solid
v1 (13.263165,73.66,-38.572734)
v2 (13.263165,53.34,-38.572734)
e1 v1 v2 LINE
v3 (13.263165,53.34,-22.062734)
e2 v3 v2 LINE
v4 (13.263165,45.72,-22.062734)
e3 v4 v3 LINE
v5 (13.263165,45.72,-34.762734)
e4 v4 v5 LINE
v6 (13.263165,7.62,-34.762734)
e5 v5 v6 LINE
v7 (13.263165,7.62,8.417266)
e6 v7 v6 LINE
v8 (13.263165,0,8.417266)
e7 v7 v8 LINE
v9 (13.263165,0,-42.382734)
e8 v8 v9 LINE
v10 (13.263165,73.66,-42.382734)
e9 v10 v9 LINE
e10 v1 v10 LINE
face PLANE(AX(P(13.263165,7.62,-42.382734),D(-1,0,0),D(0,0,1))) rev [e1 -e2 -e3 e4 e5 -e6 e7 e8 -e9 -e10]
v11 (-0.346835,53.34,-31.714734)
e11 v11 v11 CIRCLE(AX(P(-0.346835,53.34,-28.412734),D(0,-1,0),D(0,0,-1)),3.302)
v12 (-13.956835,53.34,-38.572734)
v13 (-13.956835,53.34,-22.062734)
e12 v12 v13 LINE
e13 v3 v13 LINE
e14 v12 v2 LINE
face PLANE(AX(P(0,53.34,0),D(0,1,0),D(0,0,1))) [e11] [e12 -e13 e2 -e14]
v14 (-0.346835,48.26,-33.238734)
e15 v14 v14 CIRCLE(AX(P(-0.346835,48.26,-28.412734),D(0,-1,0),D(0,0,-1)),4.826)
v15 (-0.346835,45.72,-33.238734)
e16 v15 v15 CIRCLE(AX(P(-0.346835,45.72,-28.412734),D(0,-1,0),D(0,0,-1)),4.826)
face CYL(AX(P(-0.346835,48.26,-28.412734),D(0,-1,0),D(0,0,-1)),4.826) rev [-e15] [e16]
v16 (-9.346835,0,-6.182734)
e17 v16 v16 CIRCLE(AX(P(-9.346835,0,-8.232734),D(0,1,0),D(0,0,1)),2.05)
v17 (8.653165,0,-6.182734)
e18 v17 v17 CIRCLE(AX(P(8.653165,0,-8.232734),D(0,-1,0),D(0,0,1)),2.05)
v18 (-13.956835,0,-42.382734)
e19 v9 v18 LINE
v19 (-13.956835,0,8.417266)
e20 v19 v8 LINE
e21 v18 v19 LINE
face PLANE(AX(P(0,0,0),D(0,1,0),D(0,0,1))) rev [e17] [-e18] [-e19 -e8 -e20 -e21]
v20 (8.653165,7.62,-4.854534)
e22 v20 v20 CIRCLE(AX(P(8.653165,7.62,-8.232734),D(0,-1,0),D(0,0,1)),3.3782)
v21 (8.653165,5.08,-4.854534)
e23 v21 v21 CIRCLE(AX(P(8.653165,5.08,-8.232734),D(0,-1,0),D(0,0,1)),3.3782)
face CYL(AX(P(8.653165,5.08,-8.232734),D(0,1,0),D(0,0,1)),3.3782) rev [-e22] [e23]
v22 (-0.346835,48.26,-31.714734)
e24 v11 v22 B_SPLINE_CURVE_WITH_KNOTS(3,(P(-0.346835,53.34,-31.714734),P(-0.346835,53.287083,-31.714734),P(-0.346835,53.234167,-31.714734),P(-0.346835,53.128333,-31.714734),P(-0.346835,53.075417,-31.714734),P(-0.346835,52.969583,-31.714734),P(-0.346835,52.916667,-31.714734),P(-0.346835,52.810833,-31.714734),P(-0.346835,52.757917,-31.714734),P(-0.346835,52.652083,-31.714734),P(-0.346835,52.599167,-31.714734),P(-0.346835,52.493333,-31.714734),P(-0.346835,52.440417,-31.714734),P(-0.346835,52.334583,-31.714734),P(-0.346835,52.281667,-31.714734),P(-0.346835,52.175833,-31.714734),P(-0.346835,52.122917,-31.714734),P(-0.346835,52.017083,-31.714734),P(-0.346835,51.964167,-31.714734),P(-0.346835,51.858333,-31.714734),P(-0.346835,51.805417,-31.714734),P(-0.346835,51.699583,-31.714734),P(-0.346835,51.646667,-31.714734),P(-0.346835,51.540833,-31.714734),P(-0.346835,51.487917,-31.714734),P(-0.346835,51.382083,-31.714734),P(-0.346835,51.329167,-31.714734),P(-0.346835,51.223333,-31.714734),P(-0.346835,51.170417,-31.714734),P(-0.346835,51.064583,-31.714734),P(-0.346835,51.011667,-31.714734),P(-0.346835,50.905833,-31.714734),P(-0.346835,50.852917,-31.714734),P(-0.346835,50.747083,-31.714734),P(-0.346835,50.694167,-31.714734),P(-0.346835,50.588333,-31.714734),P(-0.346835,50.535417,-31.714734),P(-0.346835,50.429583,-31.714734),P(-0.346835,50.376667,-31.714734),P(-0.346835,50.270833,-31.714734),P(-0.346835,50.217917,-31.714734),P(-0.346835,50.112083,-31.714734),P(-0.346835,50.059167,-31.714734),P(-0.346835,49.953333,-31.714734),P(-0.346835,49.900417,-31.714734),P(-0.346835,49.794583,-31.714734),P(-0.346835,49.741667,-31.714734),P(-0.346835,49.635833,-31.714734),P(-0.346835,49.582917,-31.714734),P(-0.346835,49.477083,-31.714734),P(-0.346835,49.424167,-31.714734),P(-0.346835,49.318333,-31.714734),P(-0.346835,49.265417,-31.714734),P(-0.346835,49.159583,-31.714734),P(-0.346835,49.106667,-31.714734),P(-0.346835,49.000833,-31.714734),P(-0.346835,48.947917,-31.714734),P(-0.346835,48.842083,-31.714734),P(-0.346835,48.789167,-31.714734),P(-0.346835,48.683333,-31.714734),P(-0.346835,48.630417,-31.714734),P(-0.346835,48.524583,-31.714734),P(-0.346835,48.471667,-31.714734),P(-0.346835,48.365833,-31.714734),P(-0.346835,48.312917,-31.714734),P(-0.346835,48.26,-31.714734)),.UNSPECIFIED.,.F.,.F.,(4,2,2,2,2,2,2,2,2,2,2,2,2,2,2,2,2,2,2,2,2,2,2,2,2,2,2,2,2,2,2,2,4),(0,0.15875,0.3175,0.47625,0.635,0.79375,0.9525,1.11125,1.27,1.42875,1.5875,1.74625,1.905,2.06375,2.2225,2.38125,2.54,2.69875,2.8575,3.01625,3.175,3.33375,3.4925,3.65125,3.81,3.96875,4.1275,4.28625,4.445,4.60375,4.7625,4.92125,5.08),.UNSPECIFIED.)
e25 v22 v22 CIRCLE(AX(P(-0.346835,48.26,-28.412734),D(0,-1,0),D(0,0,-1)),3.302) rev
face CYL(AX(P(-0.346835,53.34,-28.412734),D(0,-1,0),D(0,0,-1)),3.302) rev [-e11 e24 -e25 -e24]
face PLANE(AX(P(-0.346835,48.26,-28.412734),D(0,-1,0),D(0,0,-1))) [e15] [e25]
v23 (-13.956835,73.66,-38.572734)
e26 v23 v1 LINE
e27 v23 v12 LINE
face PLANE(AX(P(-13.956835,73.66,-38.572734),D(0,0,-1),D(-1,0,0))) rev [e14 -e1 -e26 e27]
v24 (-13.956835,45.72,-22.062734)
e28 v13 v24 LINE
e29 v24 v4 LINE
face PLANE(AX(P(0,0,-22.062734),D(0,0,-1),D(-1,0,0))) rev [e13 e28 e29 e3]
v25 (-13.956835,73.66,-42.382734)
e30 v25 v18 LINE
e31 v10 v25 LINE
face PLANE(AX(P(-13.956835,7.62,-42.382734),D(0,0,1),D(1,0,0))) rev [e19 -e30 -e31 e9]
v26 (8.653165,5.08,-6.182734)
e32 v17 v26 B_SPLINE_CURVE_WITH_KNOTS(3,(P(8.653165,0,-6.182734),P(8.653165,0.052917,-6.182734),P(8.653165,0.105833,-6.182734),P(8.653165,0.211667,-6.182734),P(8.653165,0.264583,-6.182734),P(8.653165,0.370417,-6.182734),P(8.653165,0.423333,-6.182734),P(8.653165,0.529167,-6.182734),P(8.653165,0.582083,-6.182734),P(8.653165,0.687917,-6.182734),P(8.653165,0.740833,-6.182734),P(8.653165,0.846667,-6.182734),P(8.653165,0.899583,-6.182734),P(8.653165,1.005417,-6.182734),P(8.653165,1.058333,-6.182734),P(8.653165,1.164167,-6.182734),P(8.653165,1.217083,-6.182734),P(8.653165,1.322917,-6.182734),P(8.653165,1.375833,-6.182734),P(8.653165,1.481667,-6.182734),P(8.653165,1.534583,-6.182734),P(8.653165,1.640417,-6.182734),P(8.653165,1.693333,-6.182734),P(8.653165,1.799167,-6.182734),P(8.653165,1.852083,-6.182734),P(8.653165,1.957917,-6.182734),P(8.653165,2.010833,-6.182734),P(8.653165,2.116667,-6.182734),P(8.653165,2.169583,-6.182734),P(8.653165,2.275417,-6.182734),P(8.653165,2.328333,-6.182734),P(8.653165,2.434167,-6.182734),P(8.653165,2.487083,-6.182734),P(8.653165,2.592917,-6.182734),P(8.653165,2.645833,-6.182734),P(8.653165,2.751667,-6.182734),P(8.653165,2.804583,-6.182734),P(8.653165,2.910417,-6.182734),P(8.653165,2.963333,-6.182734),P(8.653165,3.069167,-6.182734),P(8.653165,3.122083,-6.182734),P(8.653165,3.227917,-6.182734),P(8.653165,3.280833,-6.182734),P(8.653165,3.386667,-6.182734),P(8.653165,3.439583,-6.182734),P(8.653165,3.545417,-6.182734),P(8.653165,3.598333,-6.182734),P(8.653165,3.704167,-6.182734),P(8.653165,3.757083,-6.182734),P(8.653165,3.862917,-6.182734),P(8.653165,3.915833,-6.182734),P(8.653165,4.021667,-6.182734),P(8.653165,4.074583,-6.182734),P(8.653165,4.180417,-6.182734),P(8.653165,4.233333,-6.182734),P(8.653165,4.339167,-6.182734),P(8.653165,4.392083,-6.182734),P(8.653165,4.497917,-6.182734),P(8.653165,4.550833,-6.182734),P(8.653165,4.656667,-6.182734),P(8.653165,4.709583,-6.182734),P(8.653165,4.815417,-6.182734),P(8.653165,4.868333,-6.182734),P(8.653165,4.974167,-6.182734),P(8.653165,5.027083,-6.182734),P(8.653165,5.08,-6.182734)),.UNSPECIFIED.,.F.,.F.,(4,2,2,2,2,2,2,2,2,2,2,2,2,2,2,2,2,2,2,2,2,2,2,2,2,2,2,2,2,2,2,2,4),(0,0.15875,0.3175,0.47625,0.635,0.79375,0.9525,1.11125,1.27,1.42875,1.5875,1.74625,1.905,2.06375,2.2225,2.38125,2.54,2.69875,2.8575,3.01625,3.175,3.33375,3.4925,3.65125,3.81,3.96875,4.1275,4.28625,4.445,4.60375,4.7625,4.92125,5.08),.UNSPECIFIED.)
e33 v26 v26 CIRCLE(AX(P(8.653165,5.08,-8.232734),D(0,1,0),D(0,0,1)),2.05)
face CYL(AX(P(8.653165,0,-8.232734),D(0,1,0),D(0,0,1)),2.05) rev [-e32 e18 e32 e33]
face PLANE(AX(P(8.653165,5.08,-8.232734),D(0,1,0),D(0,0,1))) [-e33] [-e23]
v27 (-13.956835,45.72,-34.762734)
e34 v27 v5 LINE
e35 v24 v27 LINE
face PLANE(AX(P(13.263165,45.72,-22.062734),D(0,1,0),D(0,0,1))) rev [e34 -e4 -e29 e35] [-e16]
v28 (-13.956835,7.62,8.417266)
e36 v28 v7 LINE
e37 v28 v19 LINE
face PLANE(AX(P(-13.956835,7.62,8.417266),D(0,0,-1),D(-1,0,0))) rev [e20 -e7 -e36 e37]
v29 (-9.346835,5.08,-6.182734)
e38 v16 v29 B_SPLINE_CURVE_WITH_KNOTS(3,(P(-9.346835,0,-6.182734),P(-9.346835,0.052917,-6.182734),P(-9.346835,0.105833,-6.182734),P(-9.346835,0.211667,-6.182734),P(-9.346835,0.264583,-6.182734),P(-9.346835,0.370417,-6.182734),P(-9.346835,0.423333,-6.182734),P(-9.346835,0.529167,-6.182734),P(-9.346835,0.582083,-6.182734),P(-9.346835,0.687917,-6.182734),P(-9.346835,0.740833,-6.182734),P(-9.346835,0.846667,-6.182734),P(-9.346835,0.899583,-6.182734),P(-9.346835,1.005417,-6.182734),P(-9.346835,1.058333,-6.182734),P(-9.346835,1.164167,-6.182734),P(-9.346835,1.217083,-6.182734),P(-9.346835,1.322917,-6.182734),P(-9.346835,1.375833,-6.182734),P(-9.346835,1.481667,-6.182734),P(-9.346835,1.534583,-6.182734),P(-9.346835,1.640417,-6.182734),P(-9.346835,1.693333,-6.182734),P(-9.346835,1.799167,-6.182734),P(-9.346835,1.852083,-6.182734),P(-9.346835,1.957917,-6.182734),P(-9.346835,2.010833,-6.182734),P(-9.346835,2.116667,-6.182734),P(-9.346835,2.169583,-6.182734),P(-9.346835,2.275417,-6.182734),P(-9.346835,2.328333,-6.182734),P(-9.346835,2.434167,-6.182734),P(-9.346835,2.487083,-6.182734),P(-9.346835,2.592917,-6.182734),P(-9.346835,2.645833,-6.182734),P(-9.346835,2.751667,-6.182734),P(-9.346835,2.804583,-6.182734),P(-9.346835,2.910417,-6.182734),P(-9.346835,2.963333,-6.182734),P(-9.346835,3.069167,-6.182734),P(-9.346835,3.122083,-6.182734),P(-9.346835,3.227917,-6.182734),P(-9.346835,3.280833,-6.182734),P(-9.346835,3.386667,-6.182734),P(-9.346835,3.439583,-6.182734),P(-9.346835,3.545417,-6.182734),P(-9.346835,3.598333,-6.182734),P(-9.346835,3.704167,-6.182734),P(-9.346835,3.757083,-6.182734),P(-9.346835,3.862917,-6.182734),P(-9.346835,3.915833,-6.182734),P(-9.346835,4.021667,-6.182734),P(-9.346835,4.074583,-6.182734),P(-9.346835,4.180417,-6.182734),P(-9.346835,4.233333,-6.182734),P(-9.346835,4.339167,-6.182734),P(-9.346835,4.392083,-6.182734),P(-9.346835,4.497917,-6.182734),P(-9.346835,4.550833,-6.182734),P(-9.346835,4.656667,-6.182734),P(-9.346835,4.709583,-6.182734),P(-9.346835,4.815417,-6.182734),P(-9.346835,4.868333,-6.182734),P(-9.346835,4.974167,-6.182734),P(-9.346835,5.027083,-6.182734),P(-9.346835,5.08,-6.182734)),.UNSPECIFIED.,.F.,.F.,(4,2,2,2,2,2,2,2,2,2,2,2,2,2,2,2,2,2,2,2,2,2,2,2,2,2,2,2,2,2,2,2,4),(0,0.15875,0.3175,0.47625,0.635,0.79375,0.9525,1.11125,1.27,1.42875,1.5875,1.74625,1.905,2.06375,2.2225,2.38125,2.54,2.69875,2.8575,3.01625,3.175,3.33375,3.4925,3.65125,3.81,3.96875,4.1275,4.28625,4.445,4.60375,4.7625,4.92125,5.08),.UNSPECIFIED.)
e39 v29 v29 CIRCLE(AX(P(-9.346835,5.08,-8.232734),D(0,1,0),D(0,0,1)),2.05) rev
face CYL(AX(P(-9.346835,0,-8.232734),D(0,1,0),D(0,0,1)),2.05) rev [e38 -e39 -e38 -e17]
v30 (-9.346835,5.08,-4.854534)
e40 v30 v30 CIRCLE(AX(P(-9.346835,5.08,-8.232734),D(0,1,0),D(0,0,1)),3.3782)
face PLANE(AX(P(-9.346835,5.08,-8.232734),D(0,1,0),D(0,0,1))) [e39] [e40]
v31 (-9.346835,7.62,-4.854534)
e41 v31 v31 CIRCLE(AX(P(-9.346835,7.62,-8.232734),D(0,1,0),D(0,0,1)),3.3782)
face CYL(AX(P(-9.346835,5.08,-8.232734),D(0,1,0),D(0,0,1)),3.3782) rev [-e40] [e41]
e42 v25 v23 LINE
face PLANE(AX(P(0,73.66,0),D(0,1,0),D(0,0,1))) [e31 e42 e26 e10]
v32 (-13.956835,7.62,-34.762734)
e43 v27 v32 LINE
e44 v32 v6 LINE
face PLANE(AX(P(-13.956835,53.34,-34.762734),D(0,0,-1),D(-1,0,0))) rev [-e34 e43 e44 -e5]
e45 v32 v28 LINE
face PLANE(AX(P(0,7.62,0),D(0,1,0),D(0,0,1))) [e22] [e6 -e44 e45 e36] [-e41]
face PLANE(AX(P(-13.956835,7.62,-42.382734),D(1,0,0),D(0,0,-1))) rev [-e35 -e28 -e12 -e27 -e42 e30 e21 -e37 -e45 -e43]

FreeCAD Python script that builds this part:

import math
import FreeCAD as App
import Part
import Sketcher
from FreeCAD import Vector
Q = App.Units.Quantity


def add_polygon(sketch, points):
    """Adds a closed chain of lines whose ends are joined by coincident constraints."""
    first, n = sketch.GeometryCount, len(points)
    for a, b in zip(points, points[1:] + points[:1]):
        sketch.addGeometry(Part.LineSegment(App.Vector(*a, 0), App.Vector(*b, 0)), False)
    for i in range(n):
        sketch.addConstraint(Sketcher.Constraint("Coincident", first + i, 2, first + (i + 1) % n, 1))

doc = App.newDocument("Part")
params = doc.addObject("Spreadsheet::Sheet", "Params")
for row, (alias, value) in enumerate([
    ("sketch1_height", "2 in"),
    ("pad1_length", "0.3 in"),
    ("pocket1_length", "0.3 in"),
    ("sketch3_diameter", "0.266 in"),
    ("pocket2_length", "0.1 in"),
    ("sketch4_height", "0.3 in"),
    ("pad2_length", "1.8 in"),
    ("sketch5_height", "0.3 in"),
    ("pad3_length", "0.5 in"),
    ("sketch6_radius", "0.13 in"),
    ("pocket3_length", "0.3 in"),
    ("sketch7_diameter", "0.38 in"),
    ("pocket4_length", "0.1 in"),
    ("sketch8_height", "0.15 in"),
    ("pad4_length", "0.8 in"),
], start=1):
    params.set(f"A{row}", alias)
    params.set(f"B{row}", "=" + value)
    params.setAlias(f"B{row}", alias)

body = doc.addObject("PartDesign::Body", "Body")

sketch1 = doc.addObject("Sketcher::SketchObject", "Sketch")
body.addObject(sketch1)
sketch1.AttachmentSupport = (doc.XZ_Plane, [""])
sketch1.MapMode = "FlatFace"
add_polygon(sketch1, [(-13.956835, -42.382734), (-13.956835, 8.417266), (13.263165, 8.417266), (13.263165, -42.382734)])
sketch1.addConstraint(Sketcher.Constraint("Vertical", 0))
sketch1.addConstraint(Sketcher.Constraint("Horizontal", 1))
sketch1.addConstraint(Sketcher.Constraint("Vertical", 2))
sketch1.addConstraint(Sketcher.Constraint("Horizontal", 3))
sketch1.addConstraint(Sketcher.Constraint("DistanceY", 0, 1, 0, 2, Q("2 in")))
sketch1.addConstraint(Sketcher.Constraint("DistanceX", 1, 1, 1, 2, Q("27.22 mm")))
sketch1.addConstraint(Sketcher.Constraint("DistanceX", 0, 2, -1, 1, Q("13.956835 mm")))
sketch1.addConstraint(Sketcher.Constraint("DistanceY", -1, 1, 0, 2, Q("8.417266 mm")))
sketch1.setExpression("Constraints[8]", "Params.sketch1_height")
pad1 = doc.addObject("PartDesign::Pad", "Pad")
body.addObject(pad1)
pad1.Profile = sketch1
pad1.setExpression("Length", "Params.pad1_length")
pad1.Reversed = True

sketch2 = doc.addObject("Sketcher::SketchObject", "Sketch001")
body.addObject(sketch2)
sketch2.AttachmentSupport = (doc.XZ_Plane, [""])
sketch2.MapMode = "FlatFace"
sketch2.AttachmentOffset = App.Placement(Vector(0, 0, -0.3 * 25.4), App.Rotation())
sketch2.addGeometry(Part.Circle(Vector(-9.346835, -8.232734, 0), Vector(0, 0, 1), 2.05), False)
sketch2.addConstraint(Sketcher.Constraint("Diameter", 0, Q("4.1 mm")))
sketch2.addConstraint(Sketcher.Constraint("DistanceX", 0, 3, -1, 1, Q("9.346835 mm")))
sketch2.addConstraint(Sketcher.Constraint("DistanceY", 0, 3, -1, 1, Q("8.232734 mm")))
pocket1 = doc.addObject("PartDesign::Pocket", "Pocket")
body.addObject(pocket1)
pocket1.Profile = sketch2
pocket1.setExpression("Length", "Params.pocket1_length")
pocket1.Reversed = True

sketch3 = doc.addObject("Sketcher::SketchObject", "Sketch002")
body.addObject(sketch3)
sketch3.AttachmentSupport = (doc.XZ_Plane, [""])
sketch3.MapMode = "FlatFace"
sketch3.AttachmentOffset = App.Placement(Vector(0, 0, -0.3 * 25.4), App.Rotation())
sketch3.addGeometry(Part.Circle(Vector(-9.346835, -8.232734, 0), Vector(0, 0, 1), 3.3782), False)
sketch3.addConstraint(Sketcher.Constraint("Diameter", 0, Q("0.266 in")))
sketch3.addConstraint(Sketcher.Constraint("DistanceX", 0, 3, -1, 1, Q("9.346835 mm")))
sketch3.addConstraint(Sketcher.Constraint("DistanceY", 0, 3, -1, 1, Q("8.232734 mm")))
sketch3.setExpression("Constraints[0]", "Params.sketch3_diameter")
pocket2 = doc.addObject("PartDesign::Pocket", "Pocket001")
body.addObject(pocket2)
pocket2.Profile = sketch3
pocket2.setExpression("Length", "Params.pocket2_length")
pocket2.Reversed = True
doc.recompute()

datumplane = doc.addObject("PartDesign::Plane", "DatumPlane")
body.addObject(datumplane)
datumplane.AttachmentSupport = (doc.YZ_Plane, [""])
datumplane.MapMode = "FlatFace"
datumplane.AttachmentOffset = App.Placement(Vector(0, 0, -0.346835), App.Rotation())
mirrored = doc.addObject("PartDesign::Mirrored", "Mirrored")
body.addObject(mirrored)
mirrored.Originals = [pocket1, pocket2]
mirrored.MirrorPlane = (datumplane, [""])
body.Tip = mirrored

sketch4 = doc.addObject("Sketcher::SketchObject", "Sketch003")
body.addObject(sketch4)
sketch4.AttachmentSupport = (doc.XZ_Plane, [""])
sketch4.MapMode = "FlatFace"
sketch4.AttachmentOffset = App.Placement(Vector(0, 0, -0.3 * 25.4), App.Rotation())
add_polygon(sketch4, [(-13.956835, -42.382734), (-13.956835, -34.762734), (13.263165, -34.762734), (13.263165, -42.382734)])
sketch4.addConstraint(Sketcher.Constraint("Vertical", 0))
sketch4.addConstraint(Sketcher.Constraint("Horizontal", 1))
sketch4.addConstraint(Sketcher.Constraint("Vertical", 2))
sketch4.addConstraint(Sketcher.Constraint("Horizontal", 3))
sketch4.addConstraint(Sketcher.Constraint("DistanceY", 0, 1, 0, 2, Q("0.3 in")))
sketch4.addConstraint(Sketcher.Constraint("DistanceX", 1, 1, 1, 2, Q("27.22 mm")))
sketch4.addConstraint(Sketcher.Constraint("DistanceX", 0, 2, -1, 1, Q("13.956835 mm")))
sketch4.addConstraint(Sketcher.Constraint("DistanceY", 0, 2, -1, 1, Q("34.762734 mm")))
sketch4.setExpression("Constraints[8]", "Params.sketch4_height")
pad2 = doc.addObject("PartDesign::Pad", "Pad001")
body.addObject(pad2)
pad2.Profile = sketch4
pad2.setExpression("Length", "Params.pad2_length")
pad2.Reversed = True

sketch5 = doc.addObject("Sketcher::SketchObject", "Sketch004")
body.addObject(sketch5)
sketch5.AttachmentSupport = (doc.XY_Plane, [""])
sketch5.MapMode = "FlatFace"
sketch5.AttachmentOffset = App.Placement(Vector(0, 0, -34.762734), App.Rotation())
add_polygon(sketch5, [(-13.956835, 53.34), (-13.956835, 45.72), (13.263165, 45.72), (13.263165, 53.34)])
sketch5.addConstraint(Sketcher.Constraint("Vertical", 0))
sketch5.addConstraint(Sketcher.Constraint("Horizontal", 1))
sketch5.addConstraint(Sketcher.Constraint("Vertical", 2))
sketch5.addConstraint(Sketcher.Constraint("Horizontal", 3))
sketch5.addConstraint(Sketcher.Constraint("DistanceY", 0, 2, 0, 1, Q("0.3 in")))
sketch5.addConstraint(Sketcher.Constraint("DistanceY", -1, 1, 0, 2, Q("1.8 in")))
sketch5.addConstraint(Sketcher.Constraint("DistanceX", 1, 1, 1, 2, Q("27.22 mm")))
sketch5.addConstraint(Sketcher.Constraint("DistanceX", 0, 2, -1, 1, Q("13.956835 mm")))
sketch5.setExpression("Constraints[8]", "Params.sketch5_height")
pad3 = doc.addObject("PartDesign::Pad", "Pad002")
body.addObject(pad3)
pad3.Profile = sketch5
pad3.setExpression("Length", "Params.pad3_length")

sketch6 = doc.addObject("Sketcher::SketchObject", "Sketch005")
body.addObject(sketch6)
sketch6.AttachmentSupport = (doc.XZ_Plane, [""])
sketch6.MapMode = "FlatFace"
sketch6.AttachmentOffset = App.Placement(Vector(0, 0, -1.8 * 25.4), App.Rotation())
sketch6.addGeometry(Part.ArcOfCircle(Part.Circle(Vector(-0.346835, -28.412734, 0), Vector(0, 0, 1), 3.302), math.radians(0), math.radians(90)), False)
sketch6.addGeometry(Part.ArcOfCircle(Part.Circle(Vector(-0.346835, -28.412734, 0), Vector(0, 0, 1), 3.302), math.radians(90), math.radians(270)), False)
sketch6.addGeometry(Part.ArcOfCircle(Part.Circle(Vector(-0.346835, -28.412734, 0), Vector(0, 0, 1), 3.302), math.radians(-90), math.radians(0)), False)
sketch6.addConstraint(Sketcher.Constraint("Tangent", 0, 2, 1, 1))
sketch6.addConstraint(Sketcher.Constraint("Tangent", 1, 2, 2, 1))
sketch6.addConstraint(Sketcher.Constraint("Tangent", 2, 2, 0, 1))
sketch6.addConstraint(Sketcher.Constraint("Horizontal", 1, 3, 2, 2))
sketch6.addConstraint(Sketcher.Constraint("Vertical", 2, 3, 0, 2))
sketch6.addConstraint(Sketcher.Constraint("Vertical", 0, 2, 1, 2))
sketch6.addConstraint(Sketcher.Constraint("Radius", 0, Q("0.13 in")))
sketch6.addConstraint(Sketcher.Constraint("DistanceX", 0, 3, -1, 1, Q("0.346835 mm")))
sketch6.addConstraint(Sketcher.Constraint("DistanceY", 0, 3, -1, 1, Q("28.412734 mm")))
sketch6.setExpression("Constraints[6]", "Params.sketch6_radius")
pocket3 = doc.addObject("PartDesign::Pocket", "Pocket002")
body.addObject(pocket3)
pocket3.Profile = sketch6
pocket3.setExpression("Length", "Params.pocket3_length")

sketch7 = doc.addObject("Sketcher::SketchObject", "Sketch006")
body.addObject(sketch7)
sketch7.AttachmentSupport = (doc.XZ_Plane, [""])
sketch7.MapMode = "FlatFace"
sketch7.AttachmentOffset = App.Placement(Vector(0, 0, -1.8 * 25.4), App.Rotation())
sketch7.addGeometry(Part.Circle(Vector(-0.346835, -28.412734, 0), Vector(0, 0, 1), 4.826), False)
sketch7.addConstraint(Sketcher.Constraint("Diameter", 0, Q("0.38 in")))
sketch7.addConstraint(Sketcher.Constraint("DistanceX", 0, 3, -1, 1, Q("0.346835 mm")))
sketch7.addConstraint(Sketcher.Constraint("DistanceY", 0, 3, -1, 1, Q("28.412734 mm")))
sketch7.setExpression("Constraints[0]", "Params.sketch7_diameter")
pocket4 = doc.addObject("PartDesign::Pocket", "Pocket003")
body.addObject(pocket4)
pocket4.Profile = sketch7
pocket4.setExpression("Length", "Params.pocket4_length")

sketch8 = doc.addObject("Sketcher::SketchObject", "Sketch007")
body.addObject(sketch8)
sketch8.AttachmentSupport = (doc.XZ_Plane, [""])
sketch8.MapMode = "FlatFace"
sketch8.AttachmentOffset = App.Placement(Vector(0, 0, -2.1 * 25.4), App.Rotation())
add_polygon(sketch8, [(-13.956835, -42.382734), (-13.956835, -38.572734), (13.263165, -38.572734), (13.263165, -42.382734)])
sketch8.addConstraint(Sketcher.Constraint("Vertical", 0))
sketch8.addConstraint(Sketcher.Constraint("Horizontal", 1))
sketch8.addConstraint(Sketcher.Constraint("Vertical", 2))
sketch8.addConstraint(Sketcher.Constraint("Horizontal", 3))
sketch8.addConstraint(Sketcher.Constraint("DistanceY", 0, 1, 0, 2, Q("0.15 in")))
sketch8.addConstraint(Sketcher.Constraint("DistanceX", 1, 1, 1, 2, Q("27.22 mm")))
sketch8.addConstraint(Sketcher.Constraint("DistanceX", 0, 2, -1, 1, Q("13.956835 mm")))
sketch8.addConstraint(Sketcher.Constraint("DistanceY", 0, 2, -1, 1, Q("38.572734 mm")))
sketch8.setExpression("Constraints[8]", "Params.sketch8_height")
pad4 = doc.addObject("PartDesign::Pad", "Pad003")
body.addObject(pad4)
pad4.Profile = sketch8
pad4.setExpression("Length", "Params.pad4_length")
pad4.Reversed = True

doc.recompute()
